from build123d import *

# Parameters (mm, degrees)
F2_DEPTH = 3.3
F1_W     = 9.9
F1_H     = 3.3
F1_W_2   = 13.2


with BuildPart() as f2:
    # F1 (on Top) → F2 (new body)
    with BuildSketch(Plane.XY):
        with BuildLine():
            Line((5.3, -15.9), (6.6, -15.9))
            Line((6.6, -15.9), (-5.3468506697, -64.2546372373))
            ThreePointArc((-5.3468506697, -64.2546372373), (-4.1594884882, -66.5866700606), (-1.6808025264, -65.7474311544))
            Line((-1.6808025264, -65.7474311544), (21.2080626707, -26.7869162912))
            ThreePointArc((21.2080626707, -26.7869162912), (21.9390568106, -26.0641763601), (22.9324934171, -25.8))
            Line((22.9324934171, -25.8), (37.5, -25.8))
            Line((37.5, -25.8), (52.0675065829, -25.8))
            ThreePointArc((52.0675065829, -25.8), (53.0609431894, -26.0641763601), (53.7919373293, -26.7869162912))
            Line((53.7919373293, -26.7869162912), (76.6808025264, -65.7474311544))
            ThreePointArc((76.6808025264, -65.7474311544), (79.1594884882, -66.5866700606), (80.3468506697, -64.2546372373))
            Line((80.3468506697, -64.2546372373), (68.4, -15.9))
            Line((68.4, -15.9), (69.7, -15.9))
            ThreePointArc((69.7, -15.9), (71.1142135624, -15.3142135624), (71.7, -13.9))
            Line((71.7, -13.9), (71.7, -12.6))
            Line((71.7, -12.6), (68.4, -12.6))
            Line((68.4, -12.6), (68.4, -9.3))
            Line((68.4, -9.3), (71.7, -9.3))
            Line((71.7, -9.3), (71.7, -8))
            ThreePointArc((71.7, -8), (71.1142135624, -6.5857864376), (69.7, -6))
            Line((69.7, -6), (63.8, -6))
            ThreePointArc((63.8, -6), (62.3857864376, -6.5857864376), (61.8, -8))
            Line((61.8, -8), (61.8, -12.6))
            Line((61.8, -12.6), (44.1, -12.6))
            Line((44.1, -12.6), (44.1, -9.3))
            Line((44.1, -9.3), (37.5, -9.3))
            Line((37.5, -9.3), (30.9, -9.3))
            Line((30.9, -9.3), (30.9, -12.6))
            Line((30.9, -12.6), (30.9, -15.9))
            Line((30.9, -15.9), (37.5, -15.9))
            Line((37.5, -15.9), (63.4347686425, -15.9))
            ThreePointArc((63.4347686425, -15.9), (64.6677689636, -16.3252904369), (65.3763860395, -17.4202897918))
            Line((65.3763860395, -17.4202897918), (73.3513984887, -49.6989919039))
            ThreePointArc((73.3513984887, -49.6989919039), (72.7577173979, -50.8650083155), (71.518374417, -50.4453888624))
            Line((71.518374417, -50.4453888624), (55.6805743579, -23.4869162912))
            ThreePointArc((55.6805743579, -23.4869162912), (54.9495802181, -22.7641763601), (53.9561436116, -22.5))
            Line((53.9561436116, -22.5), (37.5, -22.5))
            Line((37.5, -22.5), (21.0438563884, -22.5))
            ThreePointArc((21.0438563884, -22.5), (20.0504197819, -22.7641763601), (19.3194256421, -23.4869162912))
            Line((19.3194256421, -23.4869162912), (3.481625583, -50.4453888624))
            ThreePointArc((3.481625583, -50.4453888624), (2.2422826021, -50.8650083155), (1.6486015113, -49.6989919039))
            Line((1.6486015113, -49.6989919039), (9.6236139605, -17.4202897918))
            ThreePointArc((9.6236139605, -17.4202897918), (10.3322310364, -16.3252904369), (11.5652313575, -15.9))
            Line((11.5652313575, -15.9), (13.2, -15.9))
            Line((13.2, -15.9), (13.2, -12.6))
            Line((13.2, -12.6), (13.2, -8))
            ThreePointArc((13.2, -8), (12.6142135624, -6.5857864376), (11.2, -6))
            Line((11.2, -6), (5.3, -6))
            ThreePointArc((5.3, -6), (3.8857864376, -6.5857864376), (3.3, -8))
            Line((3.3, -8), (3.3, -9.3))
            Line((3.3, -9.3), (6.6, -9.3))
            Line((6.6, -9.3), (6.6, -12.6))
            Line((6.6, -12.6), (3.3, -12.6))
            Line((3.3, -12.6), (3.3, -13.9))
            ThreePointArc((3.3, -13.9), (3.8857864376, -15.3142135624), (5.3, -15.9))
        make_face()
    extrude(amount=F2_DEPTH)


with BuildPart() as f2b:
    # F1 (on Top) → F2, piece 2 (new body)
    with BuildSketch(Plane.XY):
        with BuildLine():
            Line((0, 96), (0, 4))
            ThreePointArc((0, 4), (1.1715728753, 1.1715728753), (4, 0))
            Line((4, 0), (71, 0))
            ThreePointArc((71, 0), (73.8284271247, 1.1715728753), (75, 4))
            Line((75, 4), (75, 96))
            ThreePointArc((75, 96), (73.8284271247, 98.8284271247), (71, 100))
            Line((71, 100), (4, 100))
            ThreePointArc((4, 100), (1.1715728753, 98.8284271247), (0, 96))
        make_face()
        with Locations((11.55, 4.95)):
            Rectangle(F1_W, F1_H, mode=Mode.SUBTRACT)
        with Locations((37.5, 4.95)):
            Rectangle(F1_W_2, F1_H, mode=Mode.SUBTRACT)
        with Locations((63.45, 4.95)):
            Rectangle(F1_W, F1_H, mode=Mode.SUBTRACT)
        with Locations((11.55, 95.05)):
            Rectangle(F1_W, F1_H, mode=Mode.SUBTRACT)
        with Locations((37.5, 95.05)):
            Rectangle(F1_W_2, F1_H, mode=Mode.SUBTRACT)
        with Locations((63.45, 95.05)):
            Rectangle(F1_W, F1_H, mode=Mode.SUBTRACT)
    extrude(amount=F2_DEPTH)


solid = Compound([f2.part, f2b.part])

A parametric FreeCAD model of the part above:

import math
import FreeCAD as App
import Part
import Sketcher

doc = App.newDocument("Part")
body = doc.addObject("PartDesign::Body", "Body")

# Sketch on XY plane
sketch1 = doc.addObject("Sketcher::SketchObject", "Sketch")
body.addObject(sketch1)
sketch1.AttachmentSupport = (doc.XY_Plane, [""])
sketch1.MapMode = "FlatFace"
sketch1.addGeometry(Part.LineSegment(App.Vector(5.3, -15.9, 0), App.Vector(6.6, -15.9, 0)), False)
sketch1.addGeometry(Part.LineSegment(App.Vector(6.6, -15.9, 0), App.Vector(-5.346851, -64.254637, 0)), False)
sketch1.addGeometry(Part.ArcOfCircle(Part.Circle(App.Vector(-3.405233, -64.734347, 0), App.Vector(0, 0, 1), 2), math.radians(166.122011), math.radians(329.566242)), False)
sketch1.addGeometry(Part.LineSegment(App.Vector(-1.680803, -65.747431, 0), App.Vector(21.208063, -26.786916, 0)), False)
sketch1.addGeometry(Part.ArcOfCircle(Part.Circle(App.Vector(22.932493, -27.8, 0), App.Vector(0, 0, 1), 2), math.radians(90), math.radians(149.566242)), False)
sketch1.addGeometry(Part.LineSegment(App.Vector(22.932493, -25.8, 0), App.Vector(52.067507, -25.8, 0)), False)
sketch1.addGeometry(Part.ArcOfCircle(Part.Circle(App.Vector(52.067507, -27.8, 0), App.Vector(0, 0, 1), 2), math.radians(30.433758), math.radians(90)), False)
sketch1.addGeometry(Part.LineSegment(App.Vector(53.791937, -26.786916, 0), App.Vector(76.680803, -65.747431, 0)), False)
sketch1.addGeometry(Part.ArcOfCircle(Part.Circle(App.Vector(78.405233, -64.734347, 0), App.Vector(0, 0, 1), 2), math.radians(-149.566242), math.radians(13.877989)), False)
sketch1.addGeometry(Part.LineSegment(App.Vector(80.346851, -64.254637, 0), App.Vector(68.4, -15.9, 0)), False)
sketch1.addGeometry(Part.LineSegment(App.Vector(68.4, -15.9, 0), App.Vector(69.7, -15.9, 0)), False)
sketch1.addGeometry(Part.ArcOfCircle(Part.Circle(App.Vector(69.7, -13.9, 0), App.Vector(0, 0, 1), 2), math.radians(-90), math.radians(0)), False)
sketch1.addGeometry(Part.LineSegment(App.Vector(71.7, -13.9, 0), App.Vector(71.7, -12.6, 0)), False)
sketch1.addGeometry(Part.LineSegment(App.Vector(71.7, -12.6, 0), App.Vector(68.4, -12.6, 0)), False)
sketch1.addGeometry(Part.LineSegment(App.Vector(68.4, -12.6, 0), App.Vector(68.4, -9.3, 0)), False)
sketch1.addGeometry(Part.LineSegment(App.Vector(68.4, -9.3, 0), App.Vector(71.7, -9.3, 0)), False)
sketch1.addGeometry(Part.LineSegment(App.Vector(71.7, -9.3, 0), App.Vector(71.7, -8, 0)), False)
sketch1.addGeometry(Part.ArcOfCircle(Part.Circle(App.Vector(69.7, -8, 0), App.Vector(0, 0, 1), 2), math.radians(0), math.radians(90)), False)
sketch1.addGeometry(Part.LineSegment(App.Vector(69.7, -6, 0), App.Vector(63.8, -6, 0)), False)
sketch1.addGeometry(Part.ArcOfCircle(Part.Circle(App.Vector(63.8, -8, 0), App.Vector(0, 0, 1), 2), math.radians(90), math.radians(180)), False)
sketch1.addGeometry(Part.LineSegment(App.Vector(61.8, -8, 0), App.Vector(61.8, -12.6, 0)), False)
sketch1.addGeometry(Part.LineSegment(App.Vector(61.8, -12.6, 0), App.Vector(44.1, -12.6, 0)), False)
sketch1.addGeometry(Part.LineSegment(App.Vector(44.1, -12.6, 0), App.Vector(44.1, -9.3, 0)), False)
sketch1.addGeometry(Part.LineSegment(App.Vector(44.1, -9.3, 0), App.Vector(30.9, -9.3, 0)), False)
sketch1.addGeometry(Part.LineSegment(App.Vector(30.9, -9.3, 0), App.Vector(30.9, -15.9, 0)), False)
sketch1.addGeometry(Part.LineSegment(App.Vector(30.9, -15.9, 0), App.Vector(63.434769, -15.9, 0)), False)
sketch1.addGeometry(Part.ArcOfCircle(Part.Circle(App.Vector(63.434769, -17.9, 0), App.Vector(0, 0, 1), 2), math.radians(13.877989), math.radians(90)), False)
sketch1.addGeometry(Part.LineSegment(App.Vector(65.376386, -17.42029, 0), App.Vector(73.351398, -49.698992, 0)), False)
sketch1.addGeometry(Part.ArcOfCircle(Part.Circle(App.Vector(72.38059, -49.938847, 0), App.Vector(0, 0, 1), 1), math.radians(-149.566242), math.radians(13.877989)), False)
sketch1.addGeometry(Part.LineSegment(App.Vector(71.518374, -50.445389, 0), App.Vector(55.680574, -23.486916, 0)), False)
sketch1.addGeometry(Part.ArcOfCircle(Part.Circle(App.Vector(53.956144, -24.5, 0), App.Vector(0, 0, 1), 2), math.radians(30.433758), math.radians(90)), False)
sketch1.addGeometry(Part.LineSegment(App.Vector(53.956144, -22.5, 0), App.Vector(21.043856, -22.5, 0)), False)
sketch1.addGeometry(Part.ArcOfCircle(Part.Circle(App.Vector(21.043856, -24.5, 0), App.Vector(0, 0, 1), 2), math.radians(90), math.radians(149.566242)), False)
sketch1.addGeometry(Part.LineSegment(App.Vector(19.319426, -23.486916, 0), App.Vector(3.481626, -50.445389, 0)), False)
sketch1.addGeometry(Part.ArcOfCircle(Part.Circle(App.Vector(2.61941, -49.938847, 0), App.Vector(0, 0, 1), 1), math.radians(166.122011), math.radians(329.566242)), False)
sketch1.addGeometry(Part.LineSegment(App.Vector(1.648602, -49.698992, 0), App.Vector(9.623614, -17.42029, 0)), False)
sketch1.addGeometry(Part.ArcOfCircle(Part.Circle(App.Vector(11.565231, -17.9, 0), App.Vector(0, 0, 1), 2), math.radians(90), math.radians(166.122011)), False)
sketch1.addGeometry(Part.LineSegment(App.Vector(11.565231, -15.9, 0), App.Vector(13.2, -15.9, 0)), False)
sketch1.addGeometry(Part.LineSegment(App.Vector(13.2, -15.9, 0), App.Vector(13.2, -8, 0)), False)
sketch1.addGeometry(Part.ArcOfCircle(Part.Circle(App.Vector(11.2, -8, 0), App.Vector(0, 0, 1), 2), math.radians(0), math.radians(90)), False)
sketch1.addGeometry(Part.LineSegment(App.Vector(11.2, -6, 0), App.Vector(5.3, -6, 0)), False)
sketch1.addGeometry(Part.ArcOfCircle(Part.Circle(App.Vector(5.3, -8, 0), App.Vector(0, 0, 1), 2), math.radians(90), math.radians(180)), False)
sketch1.addGeometry(Part.LineSegment(App.Vector(3.3, -8, 0), App.Vector(3.3, -9.3, 0)), False)
sketch1.addGeometry(Part.LineSegment(App.Vector(3.3, -9.3, 0), App.Vector(6.6, -9.3, 0)), False)
sketch1.addGeometry(Part.LineSegment(App.Vector(6.6, -9.3, 0), App.Vector(6.6, -12.6, 0)), False)
sketch1.addGeometry(Part.LineSegment(App.Vector(6.6, -12.6, 0), App.Vector(3.3, -12.6, 0)), False)
sketch1.addGeometry(Part.LineSegment(App.Vector(3.3, -12.6, 0), App.Vector(3.3, -13.9, 0)), False)
sketch1.addGeometry(Part.ArcOfCircle(Part.Circle(App.Vector(5.3, -13.9, 0), App.Vector(0, 0, 1), 2), math.radians(180), math.radians(270)), False)
sketch1.addConstraint(Sketcher.Constraint("Coincident", 0, 2, 1, 1))
sketch1.addConstraint(Sketcher.Constraint("Tangent", 1, 2, 2, 1))
sketch1.addConstraint(Sketcher.Constraint("Tangent", 2, 2, 3, 1))
sketch1.addConstraint(Sketcher.Constraint("Tangent", 3, 2, 4, 2))
sketch1.addConstraint(Sketcher.Constraint("Tangent", 4, 1, 5, 1))
sketch1.addConstraint(Sketcher.Constraint("Tangent", 5, 2, 6, 2))
sketch1.addConstraint(Sketcher.Constraint("Tangent", 6, 1, 7, 1))
sketch1.addConstraint(Sketcher.Constraint("Tangent", 7, 2, 8, 1))
sketch1.addConstraint(Sketcher.Constraint("Tangent", 8, 2, 9, 1))
sketch1.addConstraint(Sketcher.Constraint("Coincident", 9, 2, 10, 1))
sketch1.addConstraint(Sketcher.Constraint("Tangent", 10, 2, 11, 1))
sketch1.addConstraint(Sketcher.Constraint("Tangent", 11, 2, 12, 1))
sketch1.addConstraint(Sketcher.Constraint("Coincident", 12, 2, 13, 1))
sketch1.addConstraint(Sketcher.Constraint("Coincident", 13, 2, 14, 1))
sketch1.addConstraint(Sketcher.Constraint("Coincident", 14, 2, 15, 1))
sketch1.addConstraint(Sketcher.Constraint("Coincident", 15, 2, 16, 1))
sketch1.addConstraint(Sketcher.Constraint("Tangent", 16, 2, 17, 1))
sketch1.addConstraint(Sketcher.Constraint("Tangent", 17, 2, 18, 1))
sketch1.addConstraint(Sketcher.Constraint("Tangent", 18, 2, 19, 1))
sketch1.addConstraint(Sketcher.Constraint("Tangent", 19, 2, 20, 1))
sketch1.addConstraint(Sketcher.Constraint("Coincident", 20, 2, 21, 1))
sketch1.addConstraint(Sketcher.Constraint("Coincident", 21, 2, 22, 1))
sketch1.addConstraint(Sketcher.Constraint("Coincident", 22, 2, 23, 1))
sketch1.addConstraint(Sketcher.Constraint("Coincident", 23, 2, 24, 1))
sketch1.addConstraint(Sketcher.Constraint("Coincident", 24, 2, 25, 1))
sketch1.addConstraint(Sketcher.Constraint("Tangent", 25, 2, 26, 2))
sketch1.addConstraint(Sketcher.Constraint("Tangent", 26, 1, 27, 1))
sketch1.addConstraint(Sketcher.Constraint("Tangent", 27, 2, 28, 2))
sketch1.addConstraint(Sketcher.Constraint("Tangent", 28, 1, 29, 1))
sketch1.addConstraint(Sketcher.Constraint("Tangent", 29, 2, 30, 1))
sketch1.addConstraint(Sketcher.Constraint("Tangent", 30, 2, 31, 1))
sketch1.addConstraint(Sketcher.Constraint("Tangent", 31, 2, 32, 1))
sketch1.addConstraint(Sketcher.Constraint("Tangent", 32, 2, 33, 1))
sketch1.addConstraint(Sketcher.Constraint("Tangent", 33, 2, 34, 2))
sketch1.addConstraint(Sketcher.Constraint("Tangent", 34, 1, 35, 1))
sketch1.addConstraint(Sketcher.Constraint("Tangent", 35, 2, 36, 2))
sketch1.addConstraint(Sketcher.Constraint("Tangent", 36, 1, 37, 1))
sketch1.addConstraint(Sketcher.Constraint("Coincident", 37, 2, 38, 1))
sketch1.addConstraint(Sketcher.Constraint("Tangent", 38, 2, 39, 1))
sketch1.addConstraint(Sketcher.Constraint("Tangent", 39, 2, 40, 1))
sketch1.addConstraint(Sketcher.Constraint("Tangent", 40, 2, 41, 1))
sketch1.addConstraint(Sketcher.Constraint("Tangent", 41, 2, 42, 1))
sketch1.addConstraint(Sketcher.Constraint("Coincident", 42, 2, 43, 1))
sketch1.addConstraint(Sketcher.Constraint("Coincident", 43, 2, 44, 1))
sketch1.addConstraint(Sketcher.Constraint("Coincident", 44, 2, 45, 1))
sketch1.addConstraint(Sketcher.Constraint("Coincident", 45, 2, 46, 1))
sketch1.addConstraint(Sketcher.Constraint("Tangent", 46, 2, 47, 1))
sketch1.addConstraint(Sketcher.Constraint("Tangent", 47, 2, 0, 1))
sketch1.addConstraint(Sketcher.Constraint("Horizontal", 0))
sketch1.addConstraint(Sketcher.Constraint("Horizontal", 5))
sketch1.addConstraint(Sketcher.Constraint("Horizontal", 10))
sketch1.addConstraint(Sketcher.Constraint("Vertical", 12))
sketch1.addConstraint(Sketcher.Constraint("Horizontal", 13))
sketch1.addConstraint(Sketcher.Constraint("Vertical", 14))
sketch1.addConstraint(Sketcher.Constraint("Horizontal", 15))
sketch1.addConstraint(Sketcher.Constraint("Vertical", 16))
sketch1.addConstraint(Sketcher.Constraint("Horizontal", 18))
sketch1.addConstraint(Sketcher.Constraint("Vertical", 20))
sketch1.addConstraint(Sketcher.Constraint("Horizontal", 21))
sketch1.addConstraint(Sketcher.Constraint("Vertical", 22))
sketch1.addConstraint(Sketcher.Constraint("Horizontal", 23))
sketch1.addConstraint(Sketcher.Constraint("Vertical", 24))
sketch1.addConstraint(Sketcher.Constraint("Horizontal", 25))
sketch1.addConstraint(Sketcher.Constraint("Horizontal", 31))
sketch1.addConstraint(Sketcher.Constraint("Horizontal", 37))
sketch1.addConstraint(Sketcher.Constraint("Vertical", 38))
sketch1.addConstraint(Sketcher.Constraint("Horizontal", 40))
sketch1.addConstraint(Sketcher.Constraint("Vertical", 42))
sketch1.addConstraint(Sketcher.Constraint("Horizontal", 43))
sketch1.addConstraint(Sketcher.Constraint("Vertical", 44))
sketch1.addConstraint(Sketcher.Constraint("Horizontal", 45))
sketch1.addConstraint(Sketcher.Constraint("Vertical", 46))
sketch1.addConstraint(Sketcher.Constraint("Equal", 2, 4))
sketch1.addConstraint(Sketcher.Constraint("Equal", 4, 6))
sketch1.addConstraint(Sketcher.Constraint("Equal", 6, 8))
sketch1.addConstraint(Sketcher.Constraint("Equal", 8, 11))
sketch1.addConstraint(Sketcher.Constraint("Equal", 11, 17))
sketch1.addConstraint(Sketcher.Constraint("Equal", 17, 19))
sketch1.addConstraint(Sketcher.Constraint("Equal", 19, 26))
sketch1.addConstraint(Sketcher.Constraint("Equal", 26, 30))
sketch1.addConstraint(Sketcher.Constraint("Equal", 30, 32))
sketch1.addConstraint(Sketcher.Constraint("Equal", 28, 34))
sketch1.addConstraint(Sketcher.Constraint("Equal", 32, 36))
sketch1.addConstraint(Sketcher.Constraint("Equal", 36, 39))
sketch1.addConstraint(Sketcher.Constraint("Equal", 39, 41))
sketch1.addConstraint(Sketcher.Constraint("Equal", 41, 47))
sketch1.addConstraint(Sketcher.Constraint("Parallel", 9, 27))
sketch1.addConstraint(Sketcher.Constraint("Parallel", 7, 29))
sketch1.addConstraint(Sketcher.Constraint("Parallel", 3, 33))
sketch1.addConstraint(Sketcher.Constraint("Parallel", 1, 35))
sketch1.addConstraint(Sketcher.Constraint("Horizontal", 2, 3, 8, 3))
sketch1.addConstraint(Sketcher.Constraint("Horizontal", 28, 3, 34, 3))
sketch1.addConstraint(Sketcher.Constraint("Horizontal", 26, 3, 36, 3))
sketch1.addConstraint(Sketcher.Constraint("Horizontal", 19, 3, 39, 3))
sketch1.addConstraint(Sketcher.Constraint("Horizontal", 11, 3, 47, 3))
sketch1.addConstraint(Sketcher.Constraint("Horizontal", 3, 2, 6, 1))
sketch1.addConstraint(Sketcher.Constraint("Horizontal", 1, 2, 8, 2))
sketch1.addConstraint(Sketcher.Constraint("Horizontal", 13, 2, 20, 2))
sketch1.addConstraint(Sketcher.Constraint("Horizontal", 15, 2, 22, 2))
sketch1.addConstraint(Sketcher.Constraint("Horizontal", 10, 2, 24, 2))
sketch1.addConstraint(Sketcher.Constraint("Horizontal", 23, 2, 42, 2))
sketch1.addConstraint(Sketcher.Constraint("Horizontal", 21, 2, 44, 2))
sketch1.addConstraint(Sketcher.Constraint("Vertical", 11, 3, 17, 3))
sketch1.addConstraint(Sketcher.Constraint("Vertical", 41, 3, 47, 3))
sketch1.addConstraint(Sketcher.Constraint("Vertical", 9, 2, 13, 2))
sketch1.addConstraint(Sketcher.Constraint("Vertical", 0, 2, 43, 2))
sketch1.addConstraint(Sketcher.Constraint("Equal", 0, 10))
sketch1.addConstraint(Sketcher.Constraint("Equal", 18, 40))
sketch1.addConstraint(Sketcher.Constraint("Equal", 10, 12))
sketch1.addConstraint(Sketcher.Constraint("Equal", 45, 14))
sketch1.addConstraint(Sketcher.Constraint("Equal", 12, 16))
sketch1.addConstraint(Sketcher.Constraint("Radius", 2, 2.0))
sketch1.addConstraint(Sketcher.Constraint("Radius", 28, 1.0))
sketch1.addConstraint(Sketcher.Constraint("DistanceX", 0, 1, 0, 2, 1.3))
sketch1.addConstraint(Sketcher.Constraint("DistanceX", 18, 2, 18, 1, 5.9))
sketch1.addConstraint(Sketcher.Constraint("DistanceX", 21, 2, 21, 1, 17.7))
sketch1.addConstraint(Sketcher.Constraint("DistanceX", 23, 2, 23, 1, 13.2))
sketch1.addConstraint(Sketcher.Constraint("DistanceY", 17, 3, -1, 1, 8.0))
sketch1.addConstraint(Sketcher.Constraint("DistanceY", 4, 3, -1, 1, 27.8))
sketch1.addConstraint(Sketcher.Constraint("DistanceX", -1, 1, 11, 3, 69.7))
sketch1.addConstraint(Sketcher.Constraint("DistanceY", 30, 3, -1, 1, 24.5))
sketch1.addConstraint(Sketcher.Constraint("DistanceX", -1, 1, 39, 3, 11.2))
sketch1.addConstraint(Sketcher.Constraint("DistanceX", 25, 1, 25, 2, 32.534769))
sketch1.addConstraint(Sketcher.Constraint("DistanceX", 37, 1, 37, 2, 1.634769))
sketch1.addConstraint(Sketcher.Constraint("DistanceX", -1, 1, 27, 2, 73.351398))
sketch1.addConstraint(Sketcher.Constraint("Distance", 29, 31.266518))
sketch1.addConstraint(Sketcher.Constraint("DistanceX", 5, 1, 5, 2, 29.135013))
sketch1.addConstraint(Sketcher.Constraint("DistanceX", 31, 2, 31, 1, 32.912287))
pad1 = doc.addObject("PartDesign::Pad", "Pad")
body.addObject(pad1)
pad1.Profile = sketch1
pad1.Length = 3.3
body2 = doc.addObject("PartDesign::Body", "Body001")

# Sketch on XY plane
sketch2 = doc.addObject("Sketcher::SketchObject", "Sketch001")
body2.addObject(sketch2)
sketch2.AttachmentSupport = (doc.getObject("XY_Plane001"), [""])
sketch2.MapMode = "FlatFace"
sketch2.addGeometry(Part.LineSegment(App.Vector(0, 96, 0), App.Vector(0, 4, 0)), False)
sketch2.addGeometry(Part.ArcOfCircle(Part.Circle(App.Vector(4, 4, 0), App.Vector(0, 0, 1), 4), math.radians(180), math.radians(270)), False)
sketch2.addGeometry(Part.LineSegment(App.Vector(4, 0, 0), App.Vector(71, 0, 0)), False)
sketch2.addGeometry(Part.ArcOfCircle(Part.Circle(App.Vector(71, 4, 0), App.Vector(0, 0, 1), 4), math.radians(-90), math.radians(0)), False)
sketch2.addGeometry(Part.LineSegment(App.Vector(75, 4, 0), App.Vector(75, 96, 0)), False)
sketch2.addGeometry(Part.ArcOfCircle(Part.Circle(App.Vector(71, 96, 0), App.Vector(0, 0, 1), 4), math.radians(0), math.radians(90)), False)
sketch2.addGeometry(Part.LineSegment(App.Vector(71, 100, 0), App.Vector(4, 100, 0)), False)
sketch2.addGeometry(Part.ArcOfCircle(Part.Circle(App.Vector(4, 96, 0), App.Vector(0, 0, 1), 4), math.radians(90), math.radians(180)), False)
sketch2.addGeometry(Part.LineSegment(App.Vector(16.5, 3.3, 0), App.Vector(6.6, 3.3, 0)), False)
sketch2.addGeometry(Part.LineSegment(App.Vector(6.6, 3.3, 0), App.Vector(6.6, 6.6, 0)), False)
sketch2.addGeometry(Part.LineSegment(App.Vector(6.6, 6.6, 0), App.Vector(16.5, 6.6, 0)), False)
sketch2.addGeometry(Part.LineSegment(App.Vector(16.5, 6.6, 0), App.Vector(16.5, 3.3, 0)), False)
sketch2.addGeometry(Part.LineSegment(App.Vector(44.1, 3.3, 0), App.Vector(30.9, 3.3, 0)), False)
sketch2.addGeometry(Part.LineSegment(App.Vector(30.9, 3.3, 0), App.Vector(30.9, 6.6, 0)), False)
sketch2.addGeometry(Part.LineSegment(App.Vector(30.9, 6.6, 0), App.Vector(44.1, 6.6, 0)), False)
sketch2.addGeometry(Part.LineSegment(App.Vector(44.1, 6.6, 0), App.Vector(44.1, 3.3, 0)), False)
sketch2.addGeometry(Part.LineSegment(App.Vector(68.4, 3.3, 0), App.Vector(58.5, 3.3, 0)), False)
sketch2.addGeometry(Part.LineSegment(App.Vector(58.5, 3.3, 0), App.Vector(58.5, 6.6, 0)), False)
sketch2.addGeometry(Part.LineSegment(App.Vector(58.5, 6.6, 0), App.Vector(68.4, 6.6, 0)), False)
sketch2.addGeometry(Part.LineSegment(App.Vector(68.4, 6.6, 0), App.Vector(68.4, 3.3, 0)), False)
sketch2.addGeometry(Part.LineSegment(App.Vector(16.5, 93.4, 0), App.Vector(6.6, 93.4, 0)), False)
sketch2.addGeometry(Part.LineSegment(App.Vector(6.6, 93.4, 0), App.Vector(6.6, 96.7, 0)), False)
sketch2.addGeometry(Part.LineSegment(App.Vector(6.6, 96.7, 0), App.Vector(16.5, 96.7, 0)), False)
sketch2.addGeometry(Part.LineSegment(App.Vector(16.5, 96.7, 0), App.Vector(16.5, 93.4, 0)), False)
sketch2.addGeometry(Part.LineSegment(App.Vector(44.1, 93.4, 0), App.Vector(30.9, 93.4, 0)), False)
sketch2.addGeometry(Part.LineSegment(App.Vector(30.9, 93.4, 0), App.Vector(30.9, 96.7, 0)), False)
sketch2.addGeometry(Part.LineSegment(App.Vector(30.9, 96.7, 0), App.Vector(44.1, 96.7, 0)), False)
sketch2.addGeometry(Part.LineSegment(App.Vector(44.1, 96.7, 0), App.Vector(44.1, 93.4, 0)), False)
sketch2.addGeometry(Part.LineSegment(App.Vector(68.4, 93.4, 0), App.Vector(58.5, 93.4, 0)), False)
sketch2.addGeometry(Part.LineSegment(App.Vector(58.5, 93.4, 0), App.Vector(58.5, 96.7, 0)), False)
sketch2.addGeometry(Part.LineSegment(App.Vector(58.5, 96.7, 0), App.Vector(68.4, 96.7, 0)), False)
sketch2.addGeometry(Part.LineSegment(App.Vector(68.4, 96.7, 0), App.Vector(68.4, 93.4, 0)), False)
sketch2.addConstraint(Sketcher.Constraint("Tangent", 0, 2, 1, 1))
sketch2.addConstraint(Sketcher.Constraint("Tangent", 1, 2, 2, 1))
sketch2.addConstraint(Sketcher.Constraint("Tangent", 2, 2, 3, 1))
sketch2.addConstraint(Sketcher.Constraint("Tangent", 3, 2, 4, 1))
sketch2.addConstraint(Sketcher.Constraint("Tangent", 4, 2, 5, 1))
sketch2.addConstraint(Sketcher.Constraint("Tangent", 5, 2, 6, 1))
sketch2.addConstraint(Sketcher.Constraint("Tangent", 6, 2, 7, 1))
sketch2.addConstraint(Sketcher.Constraint("Tangent", 7, 2, 0, 1))
sketch2.addConstraint(Sketcher.Constraint("Coincident", 8, 2, 9, 1))
sketch2.addConstraint(Sketcher.Constraint("Coincident", 9, 2, 10, 1))
sketch2.addConstraint(Sketcher.Constraint("Coincident", 10, 2, 11, 1))
sketch2.addConstraint(Sketcher.Constraint("Coincident", 11, 2, 8, 1))
sketch2.addConstraint(Sketcher.Constraint("Coincident", 12, 2, 13, 1))
sketch2.addConstraint(Sketcher.Constraint("Coincident", 13, 2, 14, 1))
sketch2.addConstraint(Sketcher.Constraint("Coincident", 14, 2, 15, 1))
sketch2.addConstraint(Sketcher.Constraint("Coincident", 15, 2, 12, 1))
sketch2.addConstraint(Sketcher.Constraint("Coincident", 16, 2, 17, 1))
sketch2.addConstraint(Sketcher.Constraint("Coincident", 17, 2, 18, 1))
sketch2.addConstraint(Sketcher.Constraint("Coincident", 18, 2, 19, 1))
sketch2.addConstraint(Sketcher.Constraint("Coincident", 19, 2, 16, 1))
sketch2.addConstraint(Sketcher.Constraint("Coincident", 20, 2, 21, 1))
sketch2.addConstraint(Sketcher.Constraint("Coincident", 21, 2, 22, 1))
sketch2.addConstraint(Sketcher.Constraint("Coincident", 22, 2, 23, 1))
sketch2.addConstraint(Sketcher.Constraint("Coincident", 23, 2, 20, 1))
sketch2.addConstraint(Sketcher.Constraint("Coincident", 24, 2, 25, 1))
sketch2.addConstraint(Sketcher.Constraint("Coincident", 25, 2, 26, 1))
sketch2.addConstraint(Sketcher.Constraint("Coincident", 26, 2, 27, 1))
sketch2.addConstraint(Sketcher.Constraint("Coincident", 27, 2, 24, 1))
sketch2.addConstraint(Sketcher.Constraint("Coincident", 28, 2, 29, 1))
sketch2.addConstraint(Sketcher.Constraint("Coincident", 29, 2, 30, 1))
sketch2.addConstraint(Sketcher.Constraint("Coincident", 30, 2, 31, 1))
sketch2.addConstraint(Sketcher.Constraint("Coincident", 31, 2, 28, 1))
sketch2.addConstraint(Sketcher.Constraint("Vertical", 0))
sketch2.addConstraint(Sketcher.Constraint("Horizontal", 2))
sketch2.addConstraint(Sketcher.Constraint("Vertical", 4))
sketch2.addConstraint(Sketcher.Constraint("Horizontal", 6))
sketch2.addConstraint(Sketcher.Constraint("Horizontal", 8))
sketch2.addConstraint(Sketcher.Constraint("Vertical", 9))
sketch2.addConstraint(Sketcher.Constraint("Horizontal", 10))
sketch2.addConstraint(Sketcher.Constraint("Vertical", 11))
sketch2.addConstraint(Sketcher.Constraint("Horizontal", 12))
sketch2.addConstraint(Sketcher.Constraint("Vertical", 13))
sketch2.addConstraint(Sketcher.Constraint("Horizontal", 14))
sketch2.addConstraint(Sketcher.Constraint("Vertical", 15))
sketch2.addConstraint(Sketcher.Constraint("Horizontal", 16))
sketch2.addConstraint(Sketcher.Constraint("Vertical", 17))
sketch2.addConstraint(Sketcher.Constraint("Horizontal", 18))
sketch2.addConstraint(Sketcher.Constraint("Vertical", 19))
sketch2.addConstraint(Sketcher.Constraint("Horizontal", 20))
sketch2.addConstraint(Sketcher.Constraint("Vertical", 21))
sketch2.addConstraint(Sketcher.Constraint("Horizontal", 22))
sketch2.addConstraint(Sketcher.Constraint("Vertical", 23))
sketch2.addConstraint(Sketcher.Constraint("Horizontal", 24))
sketch2.addConstraint(Sketcher.Constraint("Vertical", 25))
sketch2.addConstraint(Sketcher.Constraint("Horizontal", 26))
sketch2.addConstraint(Sketcher.Constraint("Vertical", 27))
sketch2.addConstraint(Sketcher.Constraint("Horizontal", 28))
sketch2.addConstraint(Sketcher.Constraint("Vertical", 29))
sketch2.addConstraint(Sketcher.Constraint("Horizontal", 30))
sketch2.addConstraint(Sketcher.Constraint("Vertical", 31))
sketch2.addConstraint(Sketcher.Constraint("Equal", 1, 3))
sketch2.addConstraint(Sketcher.Constraint("Equal", 3, 5))
sketch2.addConstraint(Sketcher.Constraint("Equal", 5, 7))
sketch2.addConstraint(Sketcher.Constraint("PointOnObject", 0, 2, -2))
sketch2.addConstraint(Sketcher.Constraint("PointOnObject", 1, 2, -1))
sketch2.addConstraint(Sketcher.Constraint("Horizontal", 11, 2, 12, 2))
sketch2.addConstraint(Sketcher.Constraint("Horizontal", 10, 2, 13, 2))
sketch2.addConstraint(Sketcher.Constraint("Horizontal", 15, 2, 16, 2))
sketch2.addConstraint(Sketcher.Constraint("Horizontal", 14, 2, 17, 2))
sketch2.addConstraint(Sketcher.Constraint("Horizontal", 23, 2, 24, 2))
sketch2.addConstraint(Sketcher.Constraint("Horizontal", 22, 2, 25, 2))
sketch2.addConstraint(Sketcher.Constraint("Horizontal", 27, 2, 28, 2))
sketch2.addConstraint(Sketcher.Constraint("Horizontal", 26, 2, 29, 2))
sketch2.addConstraint(Sketcher.Constraint("Vertical", 9, 2, 20, 2))
sketch2.addConstraint(Sketcher.Constraint("Vertical", 11, 2, 22, 2))
sketch2.addConstraint(Sketcher.Constraint("Vertical", 13, 2, 24, 2))
sketch2.addConstraint(Sketcher.Constraint("Vertical", 15, 2, 26, 2))
sketch2.addConstraint(Sketcher.Constraint("Vertical", 17, 2, 28, 2))
sketch2.addConstraint(Sketcher.Constraint("Vertical", 19, 2, 30, 2))
sketch2.addConstraint(Sketcher.Constraint("Equal", 10, 16))
sketch2.addConstraint(Sketcher.Constraint("Equal", 19, 21))
sketch2.addConstraint(Sketcher.Constraint("Radius", 1, 4.0))
sketch2.addConstraint(Sketcher.Constraint("DistanceX", 2, 1, 2, 2, 67.0))
sketch2.addConstraint(Sketcher.Constraint("DistanceY", 0, 2, 0, 1, 92.0))
sketch2.addConstraint(Sketcher.Constraint("DistanceX", 8, 2, 8, 1, 9.9))
sketch2.addConstraint(Sketcher.Constraint("DistanceX", 12, 2, 12, 1, 13.2))
sketch2.addConstraint(Sketcher.Constraint("DistanceY", 9, 1, 9, 2, 3.3))
sketch2.addConstraint(Sketcher.Constraint("DistanceX", -1, 1, 8, 2, 6.6))
sketch2.addConstraint(Sketcher.Constraint("DistanceY", -1, 1, 8, 2, 3.3))
sketch2.addConstraint(Sketcher.Constraint("DistanceX", -1, 1, 12, 2, 30.9))
sketch2.addConstraint(Sketcher.Constraint("DistanceX", -1, 1, 16, 2, 58.5))
sketch2.addConstraint(Sketcher.Constraint("DistanceY", -1, 1, 20, 2, 93.4))
pad2 = doc.addObject("PartDesign::Pad", "Pad001")
body2.addObject(pad2)
pad2.Profile = sketch2
pad2.Length = 3.3

doc.recompute()
